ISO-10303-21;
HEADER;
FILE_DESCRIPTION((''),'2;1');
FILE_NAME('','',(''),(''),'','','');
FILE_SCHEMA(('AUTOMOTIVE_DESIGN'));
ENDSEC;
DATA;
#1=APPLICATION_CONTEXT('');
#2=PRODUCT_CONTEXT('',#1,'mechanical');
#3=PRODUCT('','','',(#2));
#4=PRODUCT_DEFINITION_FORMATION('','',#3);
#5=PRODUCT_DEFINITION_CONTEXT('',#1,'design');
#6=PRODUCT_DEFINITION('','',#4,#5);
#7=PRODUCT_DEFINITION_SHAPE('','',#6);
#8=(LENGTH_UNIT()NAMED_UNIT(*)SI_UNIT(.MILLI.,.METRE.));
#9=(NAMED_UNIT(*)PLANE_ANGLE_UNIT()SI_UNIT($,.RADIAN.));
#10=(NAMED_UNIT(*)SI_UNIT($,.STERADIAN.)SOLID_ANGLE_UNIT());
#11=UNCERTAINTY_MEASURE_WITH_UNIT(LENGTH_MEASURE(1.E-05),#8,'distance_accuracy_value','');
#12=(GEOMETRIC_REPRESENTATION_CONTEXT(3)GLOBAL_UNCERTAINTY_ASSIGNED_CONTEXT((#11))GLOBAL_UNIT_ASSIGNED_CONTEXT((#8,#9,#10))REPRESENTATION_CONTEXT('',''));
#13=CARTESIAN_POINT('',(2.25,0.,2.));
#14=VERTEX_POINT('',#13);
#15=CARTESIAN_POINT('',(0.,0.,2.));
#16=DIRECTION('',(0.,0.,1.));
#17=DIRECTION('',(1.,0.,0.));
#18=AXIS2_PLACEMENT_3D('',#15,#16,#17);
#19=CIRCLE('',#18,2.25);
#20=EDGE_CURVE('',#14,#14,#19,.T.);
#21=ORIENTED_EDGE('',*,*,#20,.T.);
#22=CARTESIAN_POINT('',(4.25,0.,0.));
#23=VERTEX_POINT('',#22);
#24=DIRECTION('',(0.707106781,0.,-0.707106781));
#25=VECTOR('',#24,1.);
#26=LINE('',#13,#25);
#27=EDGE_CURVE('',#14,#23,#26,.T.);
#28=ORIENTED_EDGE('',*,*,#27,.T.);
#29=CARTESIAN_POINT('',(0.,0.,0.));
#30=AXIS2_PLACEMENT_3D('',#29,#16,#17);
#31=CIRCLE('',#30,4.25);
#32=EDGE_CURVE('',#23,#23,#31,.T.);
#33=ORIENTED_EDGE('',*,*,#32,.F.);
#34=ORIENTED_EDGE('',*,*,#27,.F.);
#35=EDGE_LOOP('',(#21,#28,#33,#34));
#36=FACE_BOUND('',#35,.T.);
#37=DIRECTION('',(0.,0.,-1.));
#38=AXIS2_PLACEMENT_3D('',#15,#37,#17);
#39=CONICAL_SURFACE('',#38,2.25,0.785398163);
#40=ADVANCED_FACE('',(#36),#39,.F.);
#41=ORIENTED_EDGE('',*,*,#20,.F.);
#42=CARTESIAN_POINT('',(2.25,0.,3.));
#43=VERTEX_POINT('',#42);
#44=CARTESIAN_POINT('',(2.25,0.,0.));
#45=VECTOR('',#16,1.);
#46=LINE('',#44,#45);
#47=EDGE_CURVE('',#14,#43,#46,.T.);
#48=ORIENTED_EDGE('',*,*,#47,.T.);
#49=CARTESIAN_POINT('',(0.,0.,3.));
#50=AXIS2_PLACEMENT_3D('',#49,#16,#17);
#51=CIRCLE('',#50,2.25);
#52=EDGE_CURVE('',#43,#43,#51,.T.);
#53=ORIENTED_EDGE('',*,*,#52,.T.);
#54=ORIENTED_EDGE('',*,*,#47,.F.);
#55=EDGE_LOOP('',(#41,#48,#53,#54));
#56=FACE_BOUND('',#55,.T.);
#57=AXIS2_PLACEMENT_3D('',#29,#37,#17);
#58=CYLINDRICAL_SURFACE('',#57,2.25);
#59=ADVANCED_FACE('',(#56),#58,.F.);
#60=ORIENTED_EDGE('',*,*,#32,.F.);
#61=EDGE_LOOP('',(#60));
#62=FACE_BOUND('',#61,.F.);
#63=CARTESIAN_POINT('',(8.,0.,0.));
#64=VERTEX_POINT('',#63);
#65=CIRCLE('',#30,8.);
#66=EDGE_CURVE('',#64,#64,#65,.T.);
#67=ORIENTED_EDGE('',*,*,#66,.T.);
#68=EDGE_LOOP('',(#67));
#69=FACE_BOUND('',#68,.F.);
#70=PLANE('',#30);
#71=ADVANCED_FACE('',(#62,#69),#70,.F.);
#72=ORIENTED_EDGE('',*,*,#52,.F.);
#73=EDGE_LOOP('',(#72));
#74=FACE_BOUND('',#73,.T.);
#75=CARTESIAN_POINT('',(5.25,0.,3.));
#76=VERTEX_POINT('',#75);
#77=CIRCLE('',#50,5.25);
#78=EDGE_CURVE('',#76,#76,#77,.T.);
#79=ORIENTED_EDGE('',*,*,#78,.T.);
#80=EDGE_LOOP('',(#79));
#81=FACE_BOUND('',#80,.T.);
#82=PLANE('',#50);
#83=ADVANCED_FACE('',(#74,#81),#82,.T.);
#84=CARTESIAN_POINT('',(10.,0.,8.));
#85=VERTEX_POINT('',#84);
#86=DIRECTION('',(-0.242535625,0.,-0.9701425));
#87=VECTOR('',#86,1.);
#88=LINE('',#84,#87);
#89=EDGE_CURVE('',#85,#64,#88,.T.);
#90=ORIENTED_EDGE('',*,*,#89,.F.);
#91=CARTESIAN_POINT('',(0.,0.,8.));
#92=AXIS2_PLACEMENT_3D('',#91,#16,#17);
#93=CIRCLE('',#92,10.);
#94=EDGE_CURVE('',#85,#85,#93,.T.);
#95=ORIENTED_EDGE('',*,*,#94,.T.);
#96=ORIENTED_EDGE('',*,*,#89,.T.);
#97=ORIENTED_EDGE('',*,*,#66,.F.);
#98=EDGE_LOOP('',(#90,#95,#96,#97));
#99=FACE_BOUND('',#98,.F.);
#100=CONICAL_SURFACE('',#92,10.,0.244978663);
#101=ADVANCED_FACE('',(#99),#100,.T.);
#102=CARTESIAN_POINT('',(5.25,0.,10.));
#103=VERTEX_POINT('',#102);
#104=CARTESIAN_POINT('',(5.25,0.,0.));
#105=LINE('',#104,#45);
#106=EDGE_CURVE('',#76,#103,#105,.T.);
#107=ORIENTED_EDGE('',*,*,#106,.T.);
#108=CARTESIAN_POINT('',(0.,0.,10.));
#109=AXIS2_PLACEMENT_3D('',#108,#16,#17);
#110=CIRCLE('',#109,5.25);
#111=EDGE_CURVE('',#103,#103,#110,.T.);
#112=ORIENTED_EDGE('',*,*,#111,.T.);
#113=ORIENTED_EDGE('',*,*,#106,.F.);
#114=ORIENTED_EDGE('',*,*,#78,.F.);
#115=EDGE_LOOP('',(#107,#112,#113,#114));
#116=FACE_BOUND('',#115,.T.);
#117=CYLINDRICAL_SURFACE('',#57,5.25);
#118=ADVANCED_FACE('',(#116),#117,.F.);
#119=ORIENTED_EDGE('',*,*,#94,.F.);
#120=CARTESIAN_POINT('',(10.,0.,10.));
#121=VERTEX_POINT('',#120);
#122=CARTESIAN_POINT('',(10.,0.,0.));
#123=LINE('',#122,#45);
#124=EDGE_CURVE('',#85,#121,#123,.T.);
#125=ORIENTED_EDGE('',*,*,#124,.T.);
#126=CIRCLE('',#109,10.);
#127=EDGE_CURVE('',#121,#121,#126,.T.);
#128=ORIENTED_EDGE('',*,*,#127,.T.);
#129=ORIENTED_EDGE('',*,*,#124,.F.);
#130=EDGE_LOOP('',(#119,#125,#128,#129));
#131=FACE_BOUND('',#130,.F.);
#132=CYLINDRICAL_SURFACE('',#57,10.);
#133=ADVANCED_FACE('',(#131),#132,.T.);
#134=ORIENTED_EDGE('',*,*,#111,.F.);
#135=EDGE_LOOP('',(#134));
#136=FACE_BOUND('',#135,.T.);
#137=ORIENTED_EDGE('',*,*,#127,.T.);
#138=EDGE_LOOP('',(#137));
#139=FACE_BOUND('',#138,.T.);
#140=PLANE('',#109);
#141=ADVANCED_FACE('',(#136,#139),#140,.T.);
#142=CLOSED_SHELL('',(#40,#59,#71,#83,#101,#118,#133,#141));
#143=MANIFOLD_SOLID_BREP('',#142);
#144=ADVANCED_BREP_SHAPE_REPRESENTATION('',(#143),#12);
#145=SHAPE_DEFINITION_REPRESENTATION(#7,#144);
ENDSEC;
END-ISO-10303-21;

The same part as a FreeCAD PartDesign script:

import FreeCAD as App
import Part
import Sketcher

V = App.Vector
Q = App.Units.Quantity


def edges_at(feature, points):
    """Names of the edges that pass closest to the given points."""
    edges = feature.Shape.Edges
    near = lambda p: min(range(len(edges)), key=lambda i: edges[i].distToShape(Part.Vertex(*p))[0])
    return sorted({f"Edge{near(p) + 1}" for p in points})

doc = App.newDocument("Part")
body = doc.addObject("PartDesign::Body", "Body")

# Sketch on XY plane
sketch1 = body.newObject("Sketcher::SketchObject", "Sketch")
sketch1.AttachmentSupport = (doc.getObject("XY_Plane"), [""])
sketch1.MapMode = "FlatFace"
sketch1.addGeometry([
    Part.Circle(V(0, 0, 0), V(0, 0, 1), 10),
    Part.Circle(V(0, 0, 0), V(0, 0, 1), 5.25),
], False)
sketch1.addConstraint([
    Sketcher.Constraint("Coincident", 0, 3, -1, 1),
    Sketcher.Constraint("Coincident", 1, 3, -1, 1),
    Sketcher.Constraint("Diameter", 0, Q("20 mm")),
    Sketcher.Constraint("Diameter", 1, Q("10.5 mm")),
])
pad1 = body.newObject("PartDesign::Pad", "Pad")
pad1.Profile = sketch1
pad1.Length = 10

# Sketch on XY plane
sketch2 = body.newObject("Sketcher::SketchObject", "Sketch001")
sketch2.AttachmentSupport = (doc.getObject("XY_Plane"), [""])
sketch2.MapMode = "FlatFace"
sketch2.addGeometry([
    Part.Circle(V(0, 0, 0), V(0, 0, 1), 5.25),
    Part.Circle(V(0, 0, 0), V(0, 0, 1), 2.25),
], False)
sketch2.addConstraint([
    Sketcher.Constraint("Coincident", 0, 3, -1, 1),
    Sketcher.Constraint("Coincident", 1, 3, -1, 1),
    Sketcher.Constraint("Diameter", 0, Q("10.5 mm")),
    Sketcher.Constraint("Diameter", 1, Q("4.5 mm")),
])
pad2 = body.newObject("PartDesign::Pad", "Pad001")
pad2.Profile = sketch2
pad2.Length = 3
doc.recompute()

chamfer = body.newObject("PartDesign::Chamfer", "Chamfer")
chamfer.Base = (pad2, edges_at(pad2, [(-2.25, 0, 0)]))
chamfer.Size = 2
doc.recompute()

chamfer2 = body.newObject("PartDesign::Chamfer", "Chamfer001")
chamfer2.Base = (chamfer, edges_at(chamfer, [(-10, 0, 0)]))
chamfer2.ChamferType = "Two distances"
chamfer2.Size = 8
chamfer2.Size2 = 2
chamfer2.FlipDirection = True

doc.recompute()
